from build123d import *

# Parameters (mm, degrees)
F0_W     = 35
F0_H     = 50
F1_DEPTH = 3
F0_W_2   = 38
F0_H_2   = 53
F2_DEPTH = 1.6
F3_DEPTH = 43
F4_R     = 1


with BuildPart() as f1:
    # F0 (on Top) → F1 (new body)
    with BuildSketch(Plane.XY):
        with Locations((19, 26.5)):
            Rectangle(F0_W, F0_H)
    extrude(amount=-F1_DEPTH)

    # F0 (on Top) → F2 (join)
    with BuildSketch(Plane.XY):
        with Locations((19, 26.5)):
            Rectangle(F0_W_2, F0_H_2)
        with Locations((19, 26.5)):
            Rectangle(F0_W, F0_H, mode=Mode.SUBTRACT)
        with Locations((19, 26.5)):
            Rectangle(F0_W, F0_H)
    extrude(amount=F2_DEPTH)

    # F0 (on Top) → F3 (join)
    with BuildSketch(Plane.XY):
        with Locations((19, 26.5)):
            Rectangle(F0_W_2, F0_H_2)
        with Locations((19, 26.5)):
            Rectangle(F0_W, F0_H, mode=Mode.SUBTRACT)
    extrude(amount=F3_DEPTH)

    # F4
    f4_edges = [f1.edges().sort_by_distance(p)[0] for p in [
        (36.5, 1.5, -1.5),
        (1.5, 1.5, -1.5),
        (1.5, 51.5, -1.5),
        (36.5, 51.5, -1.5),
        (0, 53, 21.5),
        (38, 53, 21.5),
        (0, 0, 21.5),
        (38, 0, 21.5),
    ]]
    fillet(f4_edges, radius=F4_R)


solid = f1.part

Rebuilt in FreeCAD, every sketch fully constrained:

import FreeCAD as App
import Part
import Sketcher
from FreeCAD import Vector


def edges_at(feature, points):
    """Names of the edges that pass closest to the given points."""
    edges = feature.Shape.Edges
    near = lambda p: min(range(len(edges)), key=lambda i: edges[i].distToShape(Part.Vertex(*p))[0])
    return sorted({f"Edge{near(p) + 1}" for p in points})


def add_polygon(sketch, points):
    """Adds a closed chain of lines whose ends are joined by coincident constraints."""
    first, n = sketch.GeometryCount, len(points)
    for a, b in zip(points, points[1:] + points[:1]):
        sketch.addGeometry(Part.LineSegment(App.Vector(*a, 0), App.Vector(*b, 0)), False)
    for i in range(n):
        sketch.addConstraint(Sketcher.Constraint("Coincident", first + i, 2, first + (i + 1) % n, 1))

doc = App.newDocument("Part")
body = doc.addObject("PartDesign::Body", "Body")

# Sketch on XY plane
sketch1 = body.newObject("Sketcher::SketchObject", "Sketch")
sketch1.AttachmentSupport = (doc.getObject("XY_Plane"), [""])
sketch1.MapMode = "FlatFace"
add_polygon(sketch1, [(2, 52), (2, 2), (36, 2), (36, 52)])  # lines 0-3
sketch1.addConstraint(Sketcher.Constraint("Vertical", 0))
sketch1.addConstraint(Sketcher.Constraint("Horizontal", 1))
sketch1.addConstraint(Sketcher.Constraint("Vertical", 2))
sketch1.addConstraint(Sketcher.Constraint("Horizontal", 3))
sketch1.addConstraint(Sketcher.Constraint("DistanceX", 1, 1, 1, 2, 35.0))
sketch1.addConstraint(Sketcher.Constraint("DistanceY", 0, 2, 0, 1, 50.0))
sketch1.addConstraint(Sketcher.Constraint("DistanceX", -1, 1, 0, 2, 1.5))
sketch1.addConstraint(Sketcher.Constraint("DistanceY", -1, 1, 0, 2, 1.5))
pad1 = body.newObject("PartDesign::Pad", "Pad")
pad1.Profile = sketch1
pad1.Length = 3
pad1.Reversed = True

# Sketch on XY plane
sketch2 = body.newObject("Sketcher::SketchObject", "Sketch001")
sketch2.AttachmentSupport = (doc.getObject("XY_Plane"), [""])
sketch2.MapMode = "FlatFace"
add_polygon(sketch2, [(0, 53), (0, 0), (38, 0), (38, 53)])  # lines 0-3
sketch2.addConstraint(Sketcher.Constraint("Vertical", 0))
sketch2.addConstraint(Sketcher.Constraint("Horizontal", 1))
sketch2.addConstraint(Sketcher.Constraint("Vertical", 2))
sketch2.addConstraint(Sketcher.Constraint("Horizontal", 3))
sketch2.addConstraint(Sketcher.Constraint("Coincident", 0, 2, -1, 1))
sketch2.addConstraint(Sketcher.Constraint("DistanceX", 1, 1, 1, 2, 38.0))
sketch2.addConstraint(Sketcher.Constraint("DistanceY", 0, 2, 0, 1, 53.0))
pad2 = body.newObject("PartDesign::Pad", "Pad001")
pad2.Profile = sketch2
pad2.Length = 1.6

# Sketch on XY plane
sketch3 = body.newObject("Sketcher::SketchObject", "Sketch002")
sketch3.AttachmentSupport = (doc.getObject("XY_Plane"), [""])
sketch3.MapMode = "FlatFace"
add_polygon(sketch3, [(0, 53), (0, 0), (38, 0), (38, 53)])  # lines 0-3
add_polygon(sketch3, [(36, 2), (2, 2), (2, 52), (36, 52)])  # lines 4-7
sketch3.addConstraint(Sketcher.Constraint("Vertical", 0))
sketch3.addConstraint(Sketcher.Constraint("Horizontal", 1))
sketch3.addConstraint(Sketcher.Constraint("Vertical", 2))
sketch3.addConstraint(Sketcher.Constraint("Horizontal", 3))
sketch3.addConstraint(Sketcher.Constraint("Horizontal", 4))
sketch3.addConstraint(Sketcher.Constraint("Vertical", 5))
sketch3.addConstraint(Sketcher.Constraint("Horizontal", 6))
sketch3.addConstraint(Sketcher.Constraint("Vertical", 7))
sketch3.addConstraint(Sketcher.Constraint("Coincident", 0, 2, -1, 1))
sketch3.addConstraint(Sketcher.Constraint("DistanceX", 1, 1, 1, 2, 38.0))
sketch3.addConstraint(Sketcher.Constraint("DistanceX", 4, 2, 4, 1, 35.0))
sketch3.addConstraint(Sketcher.Constraint("DistanceY", 0, 2, 0, 1, 53.0))
sketch3.addConstraint(Sketcher.Constraint("DistanceY", 5, 1, 5, 2, 50.0))
sketch3.addConstraint(Sketcher.Constraint("DistanceX", -1, 1, 4, 2, 1.5))
sketch3.addConstraint(Sketcher.Constraint("DistanceY", -1, 1, 4, 2, 1.5))
pad3 = body.newObject("PartDesign::Pad", "Pad002")
pad3.Profile = sketch3
pad3.Length = 43
doc.recompute()

fillet = body.newObject("PartDesign::Fillet", "Fillet")
fillet.Base = (pad3, edges_at(pad3, [
    (36.5, 1.5, -1.5),
    (1.5, 1.5, -1.5),
    (1.5, 51.5, -1.5),
    (36.5, 51.5, -1.5),
    (0, 53, 21.5),
    (38, 53, 21.5),
    (0, 0, 21.5),
    (38, 0, 21.5),
]))
fillet.Radius = 1

doc.recompute()
